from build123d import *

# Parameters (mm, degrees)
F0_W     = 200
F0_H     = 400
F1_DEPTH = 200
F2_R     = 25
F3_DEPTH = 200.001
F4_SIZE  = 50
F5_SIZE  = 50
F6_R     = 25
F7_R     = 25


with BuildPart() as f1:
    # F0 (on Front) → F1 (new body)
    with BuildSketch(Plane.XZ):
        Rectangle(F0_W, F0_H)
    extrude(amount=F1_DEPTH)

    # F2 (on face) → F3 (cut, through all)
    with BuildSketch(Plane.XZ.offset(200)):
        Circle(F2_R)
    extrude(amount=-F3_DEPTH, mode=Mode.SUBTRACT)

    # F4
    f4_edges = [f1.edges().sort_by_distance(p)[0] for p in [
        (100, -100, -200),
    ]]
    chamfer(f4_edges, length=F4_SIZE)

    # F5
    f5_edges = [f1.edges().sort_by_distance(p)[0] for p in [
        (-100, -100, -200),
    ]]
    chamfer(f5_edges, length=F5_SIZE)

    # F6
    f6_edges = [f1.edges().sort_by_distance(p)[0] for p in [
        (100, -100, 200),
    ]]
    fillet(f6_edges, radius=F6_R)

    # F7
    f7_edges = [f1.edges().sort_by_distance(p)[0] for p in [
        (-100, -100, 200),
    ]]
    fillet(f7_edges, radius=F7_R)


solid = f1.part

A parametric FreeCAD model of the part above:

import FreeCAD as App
import Part
import Sketcher
from FreeCAD import Vector


def edges_at(feature, points):
    """Names of the edges that pass closest to the given points."""
    edges = feature.Shape.Edges
    near = lambda p: min(range(len(edges)), key=lambda i: edges[i].distToShape(Part.Vertex(*p))[0])
    return sorted({f"Edge{near(p) + 1}" for p in points})

doc = App.newDocument("Part")
body = doc.addObject("PartDesign::Body", "Body")

# Sketch on XZ plane
sketch1 = body.newObject("Sketcher::SketchObject", "Sketch")
sketch1.AttachmentSupport = (doc.getObject("XZ_Plane"), [""])
sketch1.MapMode = "FlatFace"
sketch1.addGeometry(Part.LineSegment(Vector(-100, 200, 0), Vector(-100, -200, 0)), False)
sketch1.addGeometry(Part.LineSegment(Vector(-100, -200, 0), Vector(100, -200, 0)), False)
sketch1.addGeometry(Part.LineSegment(Vector(100, -200, 0), Vector(100, 200, 0)), False)
sketch1.addGeometry(Part.LineSegment(Vector(100, 200, 0), Vector(-100, 200, 0)), False)
sketch1.addConstraint(Sketcher.Constraint("Coincident", 0, 2, 1, 1))
sketch1.addConstraint(Sketcher.Constraint("Coincident", 1, 2, 2, 1))
sketch1.addConstraint(Sketcher.Constraint("Coincident", 2, 2, 3, 1))
sketch1.addConstraint(Sketcher.Constraint("Coincident", 3, 2, 0, 1))
sketch1.addConstraint(Sketcher.Constraint("Vertical", 0))
sketch1.addConstraint(Sketcher.Constraint("Horizontal", 1))
sketch1.addConstraint(Sketcher.Constraint("Vertical", 2))
sketch1.addConstraint(Sketcher.Constraint("Horizontal", 3))
sketch1.addConstraint(Sketcher.Constraint("Symmetric", 0, 2, 2, 2, -1, 1))
sketch1.addConstraint(Sketcher.Constraint("DistanceX", 1, 1, 1, 2, 200.0))
sketch1.addConstraint(Sketcher.Constraint("DistanceY", 0, 2, 0, 1, 400.0))
pad1 = body.newObject("PartDesign::Pad", "Pad")
pad1.Profile = sketch1
pad1.Length = 200

# Sketch on XZ plane
sketch2 = body.newObject("Sketcher::SketchObject", "Sketch001")
sketch2.AttachmentSupport = (doc.getObject("XZ_Plane"), [""])
sketch2.MapMode = "FlatFace"
sketch2.AttachmentOffset = App.Placement(Vector(0, 0, 200), App.Rotation())
sketch2.addGeometry(Part.Circle(Vector(0, 0, 0), Vector(0, 0, 1), 25), False)
sketch2.addConstraint(Sketcher.Constraint("Coincident", 0, 3, -1, 1))
sketch2.addConstraint(Sketcher.Constraint("Diameter", 0, 50.0))
pocket1 = body.newObject("PartDesign::Pocket", "Pocket")
pocket1.Profile = sketch2
pocket1.Type = "ThroughAll"
doc.recompute()

chamfer = body.newObject("PartDesign::Chamfer", "Chamfer")
chamfer.Base = (pocket1, edges_at(pocket1, [(100, -100, -200)]))
chamfer.Size = 50
doc.recompute()

chamfer2 = body.newObject("PartDesign::Chamfer", "Chamfer001")
chamfer2.Base = (chamfer, edges_at(chamfer, [(-100, -100, -200)]))
chamfer2.Size = 50
doc.recompute()

fillet = body.newObject("PartDesign::Fillet", "Fillet")
fillet.Base = (chamfer2, edges_at(chamfer2, [(100, -100, 200)]))
fillet.Radius = 25
doc.recompute()

fillet2 = body.newObject("PartDesign::Fillet", "Fillet001")
fillet2.Base = (fillet, edges_at(fillet, [(-100, -100, 200)]))
fillet2.Radius = 25

doc.recompute()
